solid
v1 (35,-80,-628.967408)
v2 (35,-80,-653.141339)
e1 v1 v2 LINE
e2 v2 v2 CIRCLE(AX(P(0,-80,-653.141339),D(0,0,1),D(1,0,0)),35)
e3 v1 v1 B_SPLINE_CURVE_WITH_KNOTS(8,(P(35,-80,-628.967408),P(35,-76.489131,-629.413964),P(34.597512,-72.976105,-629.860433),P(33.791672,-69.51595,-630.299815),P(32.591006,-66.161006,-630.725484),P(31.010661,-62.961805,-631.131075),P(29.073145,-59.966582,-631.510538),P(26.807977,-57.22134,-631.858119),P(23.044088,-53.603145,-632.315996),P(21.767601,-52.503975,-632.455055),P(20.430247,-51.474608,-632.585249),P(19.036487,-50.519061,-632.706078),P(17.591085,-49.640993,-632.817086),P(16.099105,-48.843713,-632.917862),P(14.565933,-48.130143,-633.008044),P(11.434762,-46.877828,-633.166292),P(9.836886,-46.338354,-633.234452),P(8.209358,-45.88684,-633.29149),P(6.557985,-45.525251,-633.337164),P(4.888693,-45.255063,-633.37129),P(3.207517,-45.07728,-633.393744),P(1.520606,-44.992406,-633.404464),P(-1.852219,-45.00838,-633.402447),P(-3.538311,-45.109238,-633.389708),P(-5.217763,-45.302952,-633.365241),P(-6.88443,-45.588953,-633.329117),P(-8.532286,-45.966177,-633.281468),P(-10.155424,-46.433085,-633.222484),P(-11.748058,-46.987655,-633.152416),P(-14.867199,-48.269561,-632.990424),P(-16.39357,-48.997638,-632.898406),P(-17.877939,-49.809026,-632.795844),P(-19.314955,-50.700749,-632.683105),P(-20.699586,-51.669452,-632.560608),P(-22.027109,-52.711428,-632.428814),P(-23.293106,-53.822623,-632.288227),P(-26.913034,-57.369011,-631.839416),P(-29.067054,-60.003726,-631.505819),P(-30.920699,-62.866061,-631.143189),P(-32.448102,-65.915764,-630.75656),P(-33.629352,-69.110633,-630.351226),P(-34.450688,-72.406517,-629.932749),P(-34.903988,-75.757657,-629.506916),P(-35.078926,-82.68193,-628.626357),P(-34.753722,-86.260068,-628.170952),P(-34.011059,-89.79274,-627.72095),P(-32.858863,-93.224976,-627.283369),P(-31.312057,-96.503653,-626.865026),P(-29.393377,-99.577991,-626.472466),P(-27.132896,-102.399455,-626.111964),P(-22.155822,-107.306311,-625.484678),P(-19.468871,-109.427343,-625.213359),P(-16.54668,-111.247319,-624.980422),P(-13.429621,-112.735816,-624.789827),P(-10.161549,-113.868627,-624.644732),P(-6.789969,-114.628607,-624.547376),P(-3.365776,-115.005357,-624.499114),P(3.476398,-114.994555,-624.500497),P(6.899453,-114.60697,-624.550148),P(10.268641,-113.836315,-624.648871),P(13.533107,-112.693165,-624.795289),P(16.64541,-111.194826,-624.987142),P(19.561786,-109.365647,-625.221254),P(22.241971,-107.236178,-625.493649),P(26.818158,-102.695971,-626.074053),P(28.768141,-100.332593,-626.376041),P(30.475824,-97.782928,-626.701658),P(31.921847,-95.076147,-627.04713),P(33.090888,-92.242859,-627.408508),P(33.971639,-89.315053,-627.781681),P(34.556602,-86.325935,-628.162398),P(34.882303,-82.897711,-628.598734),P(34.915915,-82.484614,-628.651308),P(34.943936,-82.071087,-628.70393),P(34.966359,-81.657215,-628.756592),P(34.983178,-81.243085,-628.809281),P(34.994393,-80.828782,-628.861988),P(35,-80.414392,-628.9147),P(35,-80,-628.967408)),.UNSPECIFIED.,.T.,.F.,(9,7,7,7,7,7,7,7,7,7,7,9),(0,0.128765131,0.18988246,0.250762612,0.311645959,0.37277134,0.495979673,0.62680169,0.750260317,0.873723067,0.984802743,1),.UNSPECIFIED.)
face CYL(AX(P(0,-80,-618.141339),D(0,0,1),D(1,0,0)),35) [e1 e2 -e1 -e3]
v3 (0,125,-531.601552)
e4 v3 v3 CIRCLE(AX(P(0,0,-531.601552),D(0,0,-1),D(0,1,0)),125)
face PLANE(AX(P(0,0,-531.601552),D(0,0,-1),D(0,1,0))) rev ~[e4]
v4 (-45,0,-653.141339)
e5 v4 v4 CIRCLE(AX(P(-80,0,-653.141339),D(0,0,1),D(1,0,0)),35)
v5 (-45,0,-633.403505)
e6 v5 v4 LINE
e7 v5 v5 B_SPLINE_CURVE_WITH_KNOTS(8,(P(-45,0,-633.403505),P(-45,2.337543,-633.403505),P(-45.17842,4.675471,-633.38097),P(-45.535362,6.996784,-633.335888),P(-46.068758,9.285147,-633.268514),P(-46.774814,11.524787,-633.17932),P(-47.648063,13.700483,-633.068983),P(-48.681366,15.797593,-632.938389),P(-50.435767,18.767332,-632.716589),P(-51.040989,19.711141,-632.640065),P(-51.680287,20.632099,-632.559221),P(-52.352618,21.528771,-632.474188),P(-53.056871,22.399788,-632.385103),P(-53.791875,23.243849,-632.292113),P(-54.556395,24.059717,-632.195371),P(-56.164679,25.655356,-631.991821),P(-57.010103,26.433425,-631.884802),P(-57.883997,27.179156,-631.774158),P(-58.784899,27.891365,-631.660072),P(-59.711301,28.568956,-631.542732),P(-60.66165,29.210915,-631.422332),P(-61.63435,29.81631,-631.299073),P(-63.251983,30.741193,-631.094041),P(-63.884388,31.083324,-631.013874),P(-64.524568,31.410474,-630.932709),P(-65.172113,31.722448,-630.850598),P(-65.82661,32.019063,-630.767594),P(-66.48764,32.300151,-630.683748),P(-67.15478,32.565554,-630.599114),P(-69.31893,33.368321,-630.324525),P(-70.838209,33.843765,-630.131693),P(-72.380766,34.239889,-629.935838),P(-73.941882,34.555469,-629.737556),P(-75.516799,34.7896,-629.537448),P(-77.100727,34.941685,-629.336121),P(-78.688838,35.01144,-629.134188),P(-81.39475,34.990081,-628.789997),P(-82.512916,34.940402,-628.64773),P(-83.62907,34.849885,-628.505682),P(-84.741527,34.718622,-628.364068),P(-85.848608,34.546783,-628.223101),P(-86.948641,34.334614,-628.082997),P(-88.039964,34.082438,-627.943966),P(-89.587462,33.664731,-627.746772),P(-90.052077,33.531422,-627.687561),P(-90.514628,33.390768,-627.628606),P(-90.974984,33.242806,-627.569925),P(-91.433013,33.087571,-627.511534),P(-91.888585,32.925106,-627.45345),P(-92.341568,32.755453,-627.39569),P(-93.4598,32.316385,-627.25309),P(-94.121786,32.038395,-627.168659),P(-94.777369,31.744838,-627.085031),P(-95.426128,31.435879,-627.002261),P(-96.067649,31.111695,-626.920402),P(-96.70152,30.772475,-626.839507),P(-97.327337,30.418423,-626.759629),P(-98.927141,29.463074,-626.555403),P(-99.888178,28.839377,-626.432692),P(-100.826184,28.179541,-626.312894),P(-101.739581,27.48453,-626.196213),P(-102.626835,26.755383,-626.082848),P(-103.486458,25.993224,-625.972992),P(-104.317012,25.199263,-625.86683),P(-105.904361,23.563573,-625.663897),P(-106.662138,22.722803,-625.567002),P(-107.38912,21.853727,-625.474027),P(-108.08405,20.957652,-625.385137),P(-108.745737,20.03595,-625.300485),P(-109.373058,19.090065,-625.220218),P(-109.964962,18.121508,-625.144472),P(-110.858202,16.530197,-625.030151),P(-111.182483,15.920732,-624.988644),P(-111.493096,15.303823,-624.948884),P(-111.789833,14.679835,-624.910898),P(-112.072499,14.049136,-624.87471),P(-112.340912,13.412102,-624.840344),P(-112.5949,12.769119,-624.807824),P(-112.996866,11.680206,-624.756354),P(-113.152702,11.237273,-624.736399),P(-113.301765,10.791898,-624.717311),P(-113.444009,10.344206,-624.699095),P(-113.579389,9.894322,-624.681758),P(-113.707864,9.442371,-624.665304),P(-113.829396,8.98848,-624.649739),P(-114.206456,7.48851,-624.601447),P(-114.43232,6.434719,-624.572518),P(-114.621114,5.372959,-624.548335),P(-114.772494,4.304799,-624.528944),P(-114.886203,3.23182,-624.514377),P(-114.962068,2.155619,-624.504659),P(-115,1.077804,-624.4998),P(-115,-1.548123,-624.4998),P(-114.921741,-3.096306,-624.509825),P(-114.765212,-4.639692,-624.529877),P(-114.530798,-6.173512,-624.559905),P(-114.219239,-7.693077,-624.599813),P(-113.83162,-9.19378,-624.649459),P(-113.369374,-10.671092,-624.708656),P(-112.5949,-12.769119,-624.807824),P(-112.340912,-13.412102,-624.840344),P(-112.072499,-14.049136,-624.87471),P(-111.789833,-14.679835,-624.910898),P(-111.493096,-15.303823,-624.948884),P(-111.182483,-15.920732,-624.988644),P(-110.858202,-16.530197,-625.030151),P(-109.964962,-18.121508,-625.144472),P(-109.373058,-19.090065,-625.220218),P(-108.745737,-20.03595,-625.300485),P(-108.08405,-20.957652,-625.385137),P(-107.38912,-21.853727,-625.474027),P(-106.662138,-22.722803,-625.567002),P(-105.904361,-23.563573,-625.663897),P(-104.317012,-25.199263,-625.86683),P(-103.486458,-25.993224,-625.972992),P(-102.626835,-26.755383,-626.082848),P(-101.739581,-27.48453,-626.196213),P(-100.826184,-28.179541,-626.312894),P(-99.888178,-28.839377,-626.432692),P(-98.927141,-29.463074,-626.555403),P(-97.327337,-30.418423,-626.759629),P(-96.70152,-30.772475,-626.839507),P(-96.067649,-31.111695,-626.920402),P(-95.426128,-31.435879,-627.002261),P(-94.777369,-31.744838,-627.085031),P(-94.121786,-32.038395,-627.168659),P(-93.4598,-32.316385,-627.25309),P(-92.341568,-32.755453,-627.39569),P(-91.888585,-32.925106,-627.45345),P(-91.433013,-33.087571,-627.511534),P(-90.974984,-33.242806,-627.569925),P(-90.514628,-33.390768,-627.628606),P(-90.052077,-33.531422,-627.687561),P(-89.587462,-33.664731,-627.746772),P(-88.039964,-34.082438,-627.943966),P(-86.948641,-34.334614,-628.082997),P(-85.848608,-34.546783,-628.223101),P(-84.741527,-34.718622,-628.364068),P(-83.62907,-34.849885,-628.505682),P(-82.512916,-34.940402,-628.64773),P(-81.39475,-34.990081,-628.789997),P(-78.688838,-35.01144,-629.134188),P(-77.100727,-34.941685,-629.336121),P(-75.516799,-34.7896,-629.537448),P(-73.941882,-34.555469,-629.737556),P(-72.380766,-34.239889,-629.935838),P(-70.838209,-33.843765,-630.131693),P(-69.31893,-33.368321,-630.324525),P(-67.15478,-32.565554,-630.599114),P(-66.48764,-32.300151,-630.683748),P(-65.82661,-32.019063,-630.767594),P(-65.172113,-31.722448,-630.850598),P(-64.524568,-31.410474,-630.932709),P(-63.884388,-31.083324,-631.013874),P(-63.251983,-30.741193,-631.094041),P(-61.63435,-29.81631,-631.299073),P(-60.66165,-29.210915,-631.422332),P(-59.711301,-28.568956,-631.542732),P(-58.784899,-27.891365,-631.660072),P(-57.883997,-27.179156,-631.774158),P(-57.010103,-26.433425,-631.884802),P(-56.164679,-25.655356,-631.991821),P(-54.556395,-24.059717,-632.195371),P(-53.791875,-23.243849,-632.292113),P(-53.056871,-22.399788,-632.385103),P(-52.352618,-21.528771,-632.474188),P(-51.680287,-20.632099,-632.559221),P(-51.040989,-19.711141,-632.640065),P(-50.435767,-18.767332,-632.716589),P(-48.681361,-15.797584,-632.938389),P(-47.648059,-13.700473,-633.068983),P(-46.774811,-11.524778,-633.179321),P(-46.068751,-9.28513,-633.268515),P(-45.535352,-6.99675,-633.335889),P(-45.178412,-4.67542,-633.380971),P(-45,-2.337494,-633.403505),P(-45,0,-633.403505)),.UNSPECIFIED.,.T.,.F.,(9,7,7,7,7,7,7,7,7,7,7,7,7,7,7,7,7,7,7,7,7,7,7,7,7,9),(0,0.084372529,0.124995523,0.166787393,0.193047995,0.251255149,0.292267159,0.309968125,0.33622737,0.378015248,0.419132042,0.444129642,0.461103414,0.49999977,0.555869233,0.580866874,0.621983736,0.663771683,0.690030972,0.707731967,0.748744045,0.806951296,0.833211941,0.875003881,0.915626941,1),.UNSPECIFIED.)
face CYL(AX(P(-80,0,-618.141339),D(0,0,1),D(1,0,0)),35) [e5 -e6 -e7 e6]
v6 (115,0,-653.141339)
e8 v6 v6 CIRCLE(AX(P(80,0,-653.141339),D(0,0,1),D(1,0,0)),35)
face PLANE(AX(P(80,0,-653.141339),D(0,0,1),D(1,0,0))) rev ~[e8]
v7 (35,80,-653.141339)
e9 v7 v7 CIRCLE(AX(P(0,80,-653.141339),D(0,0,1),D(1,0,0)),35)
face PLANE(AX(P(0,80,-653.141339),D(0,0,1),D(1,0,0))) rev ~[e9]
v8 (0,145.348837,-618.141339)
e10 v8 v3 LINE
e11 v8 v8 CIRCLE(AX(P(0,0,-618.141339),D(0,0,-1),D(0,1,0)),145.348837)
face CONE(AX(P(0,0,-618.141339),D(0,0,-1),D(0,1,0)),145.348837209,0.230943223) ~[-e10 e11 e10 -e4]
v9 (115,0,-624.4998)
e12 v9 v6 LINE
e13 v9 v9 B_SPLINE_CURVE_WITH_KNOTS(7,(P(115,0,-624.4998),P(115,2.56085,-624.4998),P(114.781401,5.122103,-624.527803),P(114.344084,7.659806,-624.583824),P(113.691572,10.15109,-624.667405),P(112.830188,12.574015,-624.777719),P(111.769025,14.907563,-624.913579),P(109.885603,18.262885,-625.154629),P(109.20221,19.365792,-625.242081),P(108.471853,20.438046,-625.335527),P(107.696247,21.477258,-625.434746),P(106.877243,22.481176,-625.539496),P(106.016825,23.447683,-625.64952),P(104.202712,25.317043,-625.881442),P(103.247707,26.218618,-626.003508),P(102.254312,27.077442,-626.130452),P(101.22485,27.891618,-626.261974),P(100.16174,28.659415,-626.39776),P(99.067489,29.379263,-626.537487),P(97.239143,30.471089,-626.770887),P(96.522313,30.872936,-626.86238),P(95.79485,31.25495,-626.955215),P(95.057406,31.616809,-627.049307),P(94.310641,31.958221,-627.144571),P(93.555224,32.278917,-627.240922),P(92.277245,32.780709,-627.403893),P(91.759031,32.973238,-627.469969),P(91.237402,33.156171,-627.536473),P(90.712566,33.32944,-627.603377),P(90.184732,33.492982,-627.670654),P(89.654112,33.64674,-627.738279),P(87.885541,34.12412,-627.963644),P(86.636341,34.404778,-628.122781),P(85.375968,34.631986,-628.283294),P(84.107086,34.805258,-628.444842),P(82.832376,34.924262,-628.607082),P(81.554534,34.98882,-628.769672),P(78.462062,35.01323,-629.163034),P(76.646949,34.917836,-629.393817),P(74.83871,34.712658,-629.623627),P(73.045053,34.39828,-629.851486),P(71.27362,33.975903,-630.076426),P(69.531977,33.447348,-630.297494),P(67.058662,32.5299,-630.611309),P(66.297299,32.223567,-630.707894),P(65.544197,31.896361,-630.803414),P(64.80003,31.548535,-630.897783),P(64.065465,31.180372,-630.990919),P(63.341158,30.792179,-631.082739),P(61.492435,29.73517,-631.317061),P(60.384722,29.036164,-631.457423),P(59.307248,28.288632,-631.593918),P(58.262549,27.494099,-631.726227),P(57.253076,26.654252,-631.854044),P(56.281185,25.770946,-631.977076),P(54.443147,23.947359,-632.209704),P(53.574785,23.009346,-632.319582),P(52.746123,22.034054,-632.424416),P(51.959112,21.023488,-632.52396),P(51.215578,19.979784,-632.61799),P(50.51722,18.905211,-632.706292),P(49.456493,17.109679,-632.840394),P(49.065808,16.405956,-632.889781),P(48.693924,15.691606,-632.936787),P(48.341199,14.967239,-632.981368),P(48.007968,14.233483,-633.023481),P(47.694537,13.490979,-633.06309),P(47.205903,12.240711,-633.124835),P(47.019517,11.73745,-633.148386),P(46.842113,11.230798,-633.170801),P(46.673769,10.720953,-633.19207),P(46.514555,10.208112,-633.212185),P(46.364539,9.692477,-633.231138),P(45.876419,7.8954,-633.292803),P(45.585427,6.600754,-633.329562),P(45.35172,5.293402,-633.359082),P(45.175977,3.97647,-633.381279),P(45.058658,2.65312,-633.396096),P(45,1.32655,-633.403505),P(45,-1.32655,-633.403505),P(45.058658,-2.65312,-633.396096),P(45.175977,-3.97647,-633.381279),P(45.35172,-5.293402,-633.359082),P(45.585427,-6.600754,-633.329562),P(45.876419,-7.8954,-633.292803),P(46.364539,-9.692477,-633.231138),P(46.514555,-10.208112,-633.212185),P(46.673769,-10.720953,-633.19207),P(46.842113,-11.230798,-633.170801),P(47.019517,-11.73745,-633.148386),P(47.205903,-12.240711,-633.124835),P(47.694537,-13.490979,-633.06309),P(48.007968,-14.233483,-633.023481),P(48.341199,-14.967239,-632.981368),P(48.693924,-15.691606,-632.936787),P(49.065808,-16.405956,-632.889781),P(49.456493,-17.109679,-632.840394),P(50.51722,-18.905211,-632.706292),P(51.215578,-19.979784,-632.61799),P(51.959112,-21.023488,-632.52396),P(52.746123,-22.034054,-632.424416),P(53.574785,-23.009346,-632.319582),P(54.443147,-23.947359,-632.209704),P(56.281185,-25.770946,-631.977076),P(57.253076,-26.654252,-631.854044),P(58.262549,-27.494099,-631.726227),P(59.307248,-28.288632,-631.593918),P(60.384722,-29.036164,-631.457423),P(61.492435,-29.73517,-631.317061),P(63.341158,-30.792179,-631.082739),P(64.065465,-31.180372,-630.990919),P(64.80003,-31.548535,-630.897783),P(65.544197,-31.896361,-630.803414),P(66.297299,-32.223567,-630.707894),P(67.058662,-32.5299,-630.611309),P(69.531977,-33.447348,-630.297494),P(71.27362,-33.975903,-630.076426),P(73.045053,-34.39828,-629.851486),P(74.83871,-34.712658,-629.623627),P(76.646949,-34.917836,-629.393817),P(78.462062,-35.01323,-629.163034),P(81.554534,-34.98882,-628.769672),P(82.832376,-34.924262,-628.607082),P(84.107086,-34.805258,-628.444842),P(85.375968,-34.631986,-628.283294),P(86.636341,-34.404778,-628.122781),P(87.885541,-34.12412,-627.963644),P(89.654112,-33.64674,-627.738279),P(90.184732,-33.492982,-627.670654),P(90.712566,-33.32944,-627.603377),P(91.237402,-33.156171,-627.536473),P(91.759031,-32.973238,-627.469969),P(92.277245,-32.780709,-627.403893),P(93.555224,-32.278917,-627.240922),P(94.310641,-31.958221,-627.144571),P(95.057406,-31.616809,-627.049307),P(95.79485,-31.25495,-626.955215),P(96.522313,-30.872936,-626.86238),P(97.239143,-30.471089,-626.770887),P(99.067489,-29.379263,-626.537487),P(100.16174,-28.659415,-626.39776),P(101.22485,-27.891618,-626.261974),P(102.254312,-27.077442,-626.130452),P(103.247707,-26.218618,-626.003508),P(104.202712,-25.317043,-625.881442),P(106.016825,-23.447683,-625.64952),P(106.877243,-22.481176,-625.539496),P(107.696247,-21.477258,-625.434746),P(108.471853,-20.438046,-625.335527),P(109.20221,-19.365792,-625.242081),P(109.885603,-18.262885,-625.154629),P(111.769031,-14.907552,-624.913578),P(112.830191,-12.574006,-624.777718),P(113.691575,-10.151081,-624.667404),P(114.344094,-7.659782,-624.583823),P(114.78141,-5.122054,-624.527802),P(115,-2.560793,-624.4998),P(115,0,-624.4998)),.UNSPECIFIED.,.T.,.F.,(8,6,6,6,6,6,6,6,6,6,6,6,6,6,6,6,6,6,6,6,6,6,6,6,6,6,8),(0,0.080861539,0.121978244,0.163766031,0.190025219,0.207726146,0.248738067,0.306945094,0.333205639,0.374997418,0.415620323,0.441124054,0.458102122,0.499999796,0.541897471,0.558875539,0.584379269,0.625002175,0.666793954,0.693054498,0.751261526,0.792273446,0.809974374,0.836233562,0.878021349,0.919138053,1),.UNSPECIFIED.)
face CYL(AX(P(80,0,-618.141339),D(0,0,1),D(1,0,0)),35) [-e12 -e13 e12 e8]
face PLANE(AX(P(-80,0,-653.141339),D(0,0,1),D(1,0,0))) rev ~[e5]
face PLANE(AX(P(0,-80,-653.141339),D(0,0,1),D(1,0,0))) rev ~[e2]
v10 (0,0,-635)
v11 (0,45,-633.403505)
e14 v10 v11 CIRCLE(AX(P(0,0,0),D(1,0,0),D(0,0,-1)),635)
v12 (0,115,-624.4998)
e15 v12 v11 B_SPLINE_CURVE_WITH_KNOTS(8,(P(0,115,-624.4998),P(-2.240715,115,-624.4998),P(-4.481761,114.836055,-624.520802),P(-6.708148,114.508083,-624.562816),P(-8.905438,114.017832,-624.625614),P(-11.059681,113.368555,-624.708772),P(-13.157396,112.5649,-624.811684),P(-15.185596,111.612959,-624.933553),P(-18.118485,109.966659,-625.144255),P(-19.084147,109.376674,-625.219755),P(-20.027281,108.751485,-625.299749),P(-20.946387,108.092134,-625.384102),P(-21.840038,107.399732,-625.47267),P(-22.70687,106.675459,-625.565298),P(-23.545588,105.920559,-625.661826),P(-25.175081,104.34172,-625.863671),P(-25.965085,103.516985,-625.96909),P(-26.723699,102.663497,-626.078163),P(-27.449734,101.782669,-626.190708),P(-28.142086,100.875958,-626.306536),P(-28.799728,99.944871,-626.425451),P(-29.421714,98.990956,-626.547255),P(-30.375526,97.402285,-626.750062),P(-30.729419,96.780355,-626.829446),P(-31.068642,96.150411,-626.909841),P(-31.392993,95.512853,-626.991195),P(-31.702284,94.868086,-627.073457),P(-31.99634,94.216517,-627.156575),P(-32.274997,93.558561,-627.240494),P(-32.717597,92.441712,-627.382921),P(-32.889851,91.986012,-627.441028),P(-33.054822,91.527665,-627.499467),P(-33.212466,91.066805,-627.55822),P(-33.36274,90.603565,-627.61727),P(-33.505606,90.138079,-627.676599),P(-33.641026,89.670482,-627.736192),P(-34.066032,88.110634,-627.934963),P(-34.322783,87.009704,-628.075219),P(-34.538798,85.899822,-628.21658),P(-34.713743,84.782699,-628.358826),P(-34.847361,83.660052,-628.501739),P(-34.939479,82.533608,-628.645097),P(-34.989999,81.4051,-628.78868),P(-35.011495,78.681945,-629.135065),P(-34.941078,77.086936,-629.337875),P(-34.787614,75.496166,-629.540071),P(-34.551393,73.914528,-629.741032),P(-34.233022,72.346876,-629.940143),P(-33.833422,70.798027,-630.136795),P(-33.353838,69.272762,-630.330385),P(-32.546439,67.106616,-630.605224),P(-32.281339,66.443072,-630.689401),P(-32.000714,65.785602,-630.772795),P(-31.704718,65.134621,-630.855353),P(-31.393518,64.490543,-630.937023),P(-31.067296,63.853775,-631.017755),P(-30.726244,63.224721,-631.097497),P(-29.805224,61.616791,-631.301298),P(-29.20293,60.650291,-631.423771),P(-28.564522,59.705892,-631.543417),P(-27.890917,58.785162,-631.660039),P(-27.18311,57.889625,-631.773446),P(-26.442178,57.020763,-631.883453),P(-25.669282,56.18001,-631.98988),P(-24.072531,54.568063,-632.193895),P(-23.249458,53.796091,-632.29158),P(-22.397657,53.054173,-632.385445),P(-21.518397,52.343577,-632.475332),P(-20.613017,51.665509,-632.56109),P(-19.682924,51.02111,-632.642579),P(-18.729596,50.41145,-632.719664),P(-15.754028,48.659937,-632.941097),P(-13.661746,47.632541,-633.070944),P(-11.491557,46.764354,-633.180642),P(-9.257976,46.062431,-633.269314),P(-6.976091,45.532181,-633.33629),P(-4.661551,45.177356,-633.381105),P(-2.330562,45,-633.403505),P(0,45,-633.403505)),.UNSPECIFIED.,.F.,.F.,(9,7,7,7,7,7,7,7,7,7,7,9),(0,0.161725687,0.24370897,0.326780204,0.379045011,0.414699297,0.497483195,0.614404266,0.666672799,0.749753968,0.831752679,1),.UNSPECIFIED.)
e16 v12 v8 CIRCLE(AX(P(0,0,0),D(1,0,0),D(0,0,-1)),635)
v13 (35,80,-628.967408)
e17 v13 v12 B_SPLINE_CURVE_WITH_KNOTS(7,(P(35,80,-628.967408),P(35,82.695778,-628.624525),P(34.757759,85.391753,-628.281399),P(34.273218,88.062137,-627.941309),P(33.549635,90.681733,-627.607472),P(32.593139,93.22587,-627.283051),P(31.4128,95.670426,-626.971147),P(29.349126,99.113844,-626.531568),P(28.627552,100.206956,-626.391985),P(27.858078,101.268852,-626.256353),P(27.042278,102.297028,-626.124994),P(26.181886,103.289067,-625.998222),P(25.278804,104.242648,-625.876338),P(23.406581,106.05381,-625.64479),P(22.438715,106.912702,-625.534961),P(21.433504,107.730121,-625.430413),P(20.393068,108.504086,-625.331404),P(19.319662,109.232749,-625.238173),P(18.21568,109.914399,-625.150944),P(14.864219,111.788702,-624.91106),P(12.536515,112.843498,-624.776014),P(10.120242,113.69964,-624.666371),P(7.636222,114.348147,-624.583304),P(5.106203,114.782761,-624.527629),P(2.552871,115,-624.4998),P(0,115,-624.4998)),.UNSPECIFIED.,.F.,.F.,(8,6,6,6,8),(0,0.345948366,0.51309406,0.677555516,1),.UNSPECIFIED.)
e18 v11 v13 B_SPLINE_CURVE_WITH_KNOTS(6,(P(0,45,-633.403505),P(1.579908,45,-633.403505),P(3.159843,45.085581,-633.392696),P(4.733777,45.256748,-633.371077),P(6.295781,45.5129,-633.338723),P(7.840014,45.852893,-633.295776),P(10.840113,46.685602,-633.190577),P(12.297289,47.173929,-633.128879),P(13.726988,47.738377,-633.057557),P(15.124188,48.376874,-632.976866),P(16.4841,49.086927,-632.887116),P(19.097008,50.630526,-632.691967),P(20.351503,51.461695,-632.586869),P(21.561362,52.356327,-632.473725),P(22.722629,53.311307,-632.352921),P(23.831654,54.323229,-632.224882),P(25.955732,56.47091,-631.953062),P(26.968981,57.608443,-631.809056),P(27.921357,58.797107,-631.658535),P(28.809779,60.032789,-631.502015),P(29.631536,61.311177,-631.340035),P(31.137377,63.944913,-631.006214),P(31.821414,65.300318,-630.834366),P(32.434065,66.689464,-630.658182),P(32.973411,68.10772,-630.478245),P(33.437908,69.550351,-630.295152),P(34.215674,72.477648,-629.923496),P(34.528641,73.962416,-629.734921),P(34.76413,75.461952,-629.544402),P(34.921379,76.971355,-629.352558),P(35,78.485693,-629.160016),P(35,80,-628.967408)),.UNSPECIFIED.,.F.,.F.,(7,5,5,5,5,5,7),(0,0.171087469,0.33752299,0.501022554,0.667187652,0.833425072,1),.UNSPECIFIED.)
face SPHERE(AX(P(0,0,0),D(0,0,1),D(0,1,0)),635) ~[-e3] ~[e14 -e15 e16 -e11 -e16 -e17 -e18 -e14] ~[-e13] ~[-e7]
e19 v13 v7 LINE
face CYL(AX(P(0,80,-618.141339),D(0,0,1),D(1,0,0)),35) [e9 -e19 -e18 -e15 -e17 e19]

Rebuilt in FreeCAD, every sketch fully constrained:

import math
import FreeCAD as App
import Part
import Sketcher
Q = App.Units.Quantity

doc = App.newDocument("Part")
params = doc.addObject("Spreadsheet::Sheet", "Params")
for row, (alias, value) in enumerate([
    ("sketch1_radius", "635 mm"),
    ("sketch1_width", "125 mm"),
    ("sketch1_length", "88.9 mm"),
    ("revolution_angle", "360 deg"),
    ("sketch2_diameter", "70 mm"),
    ("pad1_length", "35 mm"),
], start=1):
    params.set(f"A{row}", alias)
    params.set(f"B{row}", "=" + value)
    params.setAlias(f"B{row}", alias)

body = doc.addObject("PartDesign::Body", "Body")

# Sketch on YZ plane
sketch1 = body.newObject("Sketcher::SketchObject", "Sketch")
sketch1.AttachmentSupport = (doc.getObject("YZ_Plane"), [""])
sketch1.MapMode = "FlatFace"
sketch1.addGeometry([
    Part.LineSegment(App.Vector(125, -531.601552, 0), App.Vector(0, -531.601552, 0)),
    Part.LineSegment(App.Vector(0, -531.601552, 0), App.Vector(0, -635, 0)),
    Part.ArcOfCircle(Part.Circle(App.Vector(0, 0, 0), App.Vector(0, 0, 1), 635), math.radians(-90), math.radians(-76.767928)),
    Part.LineSegment(App.Vector(145.348837, -618.141339, 0), App.Vector(125, -531.601552, 0)),
], False)
sketch1.addConstraint([
    Sketcher.Constraint("Coincident", 0, 2, 1, 1),
    Sketcher.Constraint("Coincident", 1, 2, 2, 1),
    Sketcher.Constraint("Coincident", 2, 2, 3, 1),
    Sketcher.Constraint("Coincident", 3, 2, 0, 1),
    Sketcher.Constraint("Horizontal", 0),
    Sketcher.Constraint("Vertical", 1),
    Sketcher.Constraint("Coincident", 2, 3, -1, 1),
    Sketcher.Constraint("PointOnObject", 0, 2, -2),
    Sketcher.Constraint("Radius", 2, 635.0),
    Sketcher.Constraint("DistanceX", 0, 2, 0, 1, 125.0),
    Sketcher.Constraint("Distance", 3, 88.9),
    Sketcher.Constraint("Angle", 3, Q("103.232072 deg")),
])
sketch1.setExpression("Constraints[8]", "Params.sketch1_radius")
sketch1.setExpression("Constraints[9]", "Params.sketch1_width")
sketch1.setExpression("Constraints[10]", "Params.sketch1_length")
revolution = body.newObject("PartDesign::Revolution", "Revolution")
revolution.Profile = sketch1
revolution.ReferenceAxis = (sketch1, ["V_Axis"])
revolution.setExpression("Angle", "Params.revolution_angle")

# Sketch on XY plane
sketch2 = body.newObject("Sketcher::SketchObject", "Sketch001")
sketch2.AttachmentSupport = (doc.getObject("XY_Plane"), [""])
sketch2.MapMode = "FlatFace"
sketch2.AttachmentOffset = App.Placement(App.Vector(0, 0, -618.141339), App.Rotation())
sketch2.addGeometry([
    Part.Circle(App.Vector(0, 80, 0), App.Vector(0, 0, 1), 35),
    Part.Circle(App.Vector(80, 0, 0), App.Vector(0, 0, 1), 35),
    Part.Circle(App.Vector(0, -80, 0), App.Vector(0, 0, 1), 35),
    Part.Circle(App.Vector(-80, 0, 0), App.Vector(0, 0, 1), 35),
], False)
sketch2.addConstraint([
    Sketcher.Constraint("Equal", 0, 1),
    Sketcher.Constraint("Equal", 1, 2),
    Sketcher.Constraint("Equal", 2, 3),
    Sketcher.Constraint("Symmetric", 0, 3, 2, 3, -1, 1),
    Sketcher.Constraint("Symmetric", 1, 3, 3, 3, -1, 1),
    Sketcher.Constraint("PointOnObject", 0, 3, -2),
    Sketcher.Constraint("PointOnObject", 1, 3, -1),
    Sketcher.Constraint("Diameter", 0, 70.0),
    Sketcher.Constraint("DistanceY", -1, 1, 0, 3, 80.0),
    Sketcher.Constraint("DistanceX", -1, 1, 1, 3, 80.0),
])
sketch2.setExpression("Constraints[7]", "Params.sketch2_diameter")
pad1 = body.newObject("PartDesign::Pad", "Pad")
pad1.Profile = sketch2
pad1.setExpression("Length", "Params.pad1_length")
pad1.Reversed = True

doc.recompute()
